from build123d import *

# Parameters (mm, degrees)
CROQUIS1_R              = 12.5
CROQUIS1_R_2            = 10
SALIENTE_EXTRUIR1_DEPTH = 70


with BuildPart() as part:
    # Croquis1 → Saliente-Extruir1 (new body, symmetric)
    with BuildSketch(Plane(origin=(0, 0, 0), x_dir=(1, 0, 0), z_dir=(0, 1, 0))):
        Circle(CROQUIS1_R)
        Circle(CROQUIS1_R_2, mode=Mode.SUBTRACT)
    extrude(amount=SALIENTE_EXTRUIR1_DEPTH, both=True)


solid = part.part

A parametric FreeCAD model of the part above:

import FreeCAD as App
import Part
import Sketcher
from FreeCAD import Vector
Q = App.Units.Quantity

doc = App.newDocument("Part")
body = doc.addObject("PartDesign::Body", "Body")

sketch1 = body.newObject("Sketcher::SketchObject", "Sketch")
sketch1.AttachmentSupport = (doc.getObject("XZ_Plane"), [""])
sketch1.MapMode = "FlatFace"
sketch1.addGeometry([
    Part.Circle(Vector(0, 0, 0), Vector(0, 0, 1), 12),
    Part.Circle(Vector(0, 0, 0), Vector(0, 0, 1), 10),
], False)
sketch1.addConstraint([
    Sketcher.Constraint("Coincident", 0, 3, -1, 1),
    Sketcher.Constraint("Coincident", 1, 3, -1, 1),
    Sketcher.Constraint("Diameter", 0, Q("25 mm")),
    Sketcher.Constraint("Diameter", 1, Q("20 mm")),
])
pad1 = body.newObject("PartDesign::Pad", "Pad")
pad1.Profile = sketch1
pad1.Length = 140
pad1.Midplane = True

doc.recompute()
